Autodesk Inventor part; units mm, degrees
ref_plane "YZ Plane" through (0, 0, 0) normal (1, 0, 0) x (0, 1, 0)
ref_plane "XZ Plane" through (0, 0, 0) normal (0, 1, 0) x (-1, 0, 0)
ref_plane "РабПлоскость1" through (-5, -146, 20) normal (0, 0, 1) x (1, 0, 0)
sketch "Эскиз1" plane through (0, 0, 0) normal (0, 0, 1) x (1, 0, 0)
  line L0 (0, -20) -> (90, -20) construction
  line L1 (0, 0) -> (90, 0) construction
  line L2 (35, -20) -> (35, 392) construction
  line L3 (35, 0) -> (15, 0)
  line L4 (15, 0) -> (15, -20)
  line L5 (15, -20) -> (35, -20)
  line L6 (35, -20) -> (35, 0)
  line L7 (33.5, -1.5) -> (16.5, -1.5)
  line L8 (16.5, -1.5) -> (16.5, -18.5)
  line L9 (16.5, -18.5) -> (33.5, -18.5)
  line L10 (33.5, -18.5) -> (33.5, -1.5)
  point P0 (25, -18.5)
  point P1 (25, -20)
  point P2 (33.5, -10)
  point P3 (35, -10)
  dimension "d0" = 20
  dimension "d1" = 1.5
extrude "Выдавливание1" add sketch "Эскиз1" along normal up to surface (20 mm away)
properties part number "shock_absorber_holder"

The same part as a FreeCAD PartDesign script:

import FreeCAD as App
import Part
import Sketcher
Q = App.Units.Quantity


def add_polygon(sketch, points):
    """Adds a closed chain of lines whose ends are joined by coincident constraints."""
    first, n = sketch.GeometryCount, len(points)
    for a, b in zip(points, points[1:] + points[:1]):
        sketch.addGeometry(Part.LineSegment(App.Vector(*a, 0), App.Vector(*b, 0)), False)
    for i in range(n):
        sketch.addConstraint(Sketcher.Constraint("Coincident", first + i, 2, first + (i + 1) % n, 1))

doc = App.newDocument("Part")
body = doc.addObject("PartDesign::Body", "Body")

# Sketch on XY plane
sketch1 = doc.addObject("Sketcher::SketchObject", "Sketch")
body.addObject(sketch1)
sketch1.AttachmentSupport = (doc.XY_Plane, [""])
sketch1.MapMode = "FlatFace"
add_polygon(sketch1, [(35, -20), (35, 0), (15, 0), (15, -20)])  # lines 0-3
add_polygon(sketch1, [(16, -2), (34, -2), (34, -18), (16, -18)])  # lines 4-7
sketch1.addConstraint(Sketcher.Constraint("Vertical", 0))
sketch1.addConstraint(Sketcher.Constraint("Horizontal", 1))
sketch1.addConstraint(Sketcher.Constraint("Vertical", 2))
sketch1.addConstraint(Sketcher.Constraint("Horizontal", 3))
sketch1.addConstraint(Sketcher.Constraint("Horizontal", 4))
sketch1.addConstraint(Sketcher.Constraint("Vertical", 5))
sketch1.addConstraint(Sketcher.Constraint("Horizontal", 6))
sketch1.addConstraint(Sketcher.Constraint("Vertical", 7))
sketch1.addConstraint(Sketcher.Constraint("PointOnObject", 0, 2, -1))
sketch1.addConstraint(Sketcher.Constraint("Equal", 3, 0))
sketch1.addConstraint(Sketcher.Constraint("Equal", 6, 5))
sketch1.addConstraint(Sketcher.Constraint("DistanceX", 1, 2, 1, 1, Q("20 mm")))
sketch1.addConstraint(Sketcher.Constraint("DistanceY", 4, 2, -1, 1, Q("1.5 mm")))
sketch1.addConstraint(Sketcher.Constraint("DistanceX", 4, 2, 0, 2, Q("1.5 mm")))
sketch1.addConstraint(Sketcher.Constraint("DistanceY", 3, 2, 5, 2, Q("1.5 mm")))
sketch1.addConstraint(Sketcher.Constraint("DistanceX", -1, 1, 0, 2, Q("35 mm")))
pad1 = doc.addObject("PartDesign::Pad", "Pad")
body.addObject(pad1)
pad1.Profile = sketch1
pad1.Length = 20

doc.recompute()
